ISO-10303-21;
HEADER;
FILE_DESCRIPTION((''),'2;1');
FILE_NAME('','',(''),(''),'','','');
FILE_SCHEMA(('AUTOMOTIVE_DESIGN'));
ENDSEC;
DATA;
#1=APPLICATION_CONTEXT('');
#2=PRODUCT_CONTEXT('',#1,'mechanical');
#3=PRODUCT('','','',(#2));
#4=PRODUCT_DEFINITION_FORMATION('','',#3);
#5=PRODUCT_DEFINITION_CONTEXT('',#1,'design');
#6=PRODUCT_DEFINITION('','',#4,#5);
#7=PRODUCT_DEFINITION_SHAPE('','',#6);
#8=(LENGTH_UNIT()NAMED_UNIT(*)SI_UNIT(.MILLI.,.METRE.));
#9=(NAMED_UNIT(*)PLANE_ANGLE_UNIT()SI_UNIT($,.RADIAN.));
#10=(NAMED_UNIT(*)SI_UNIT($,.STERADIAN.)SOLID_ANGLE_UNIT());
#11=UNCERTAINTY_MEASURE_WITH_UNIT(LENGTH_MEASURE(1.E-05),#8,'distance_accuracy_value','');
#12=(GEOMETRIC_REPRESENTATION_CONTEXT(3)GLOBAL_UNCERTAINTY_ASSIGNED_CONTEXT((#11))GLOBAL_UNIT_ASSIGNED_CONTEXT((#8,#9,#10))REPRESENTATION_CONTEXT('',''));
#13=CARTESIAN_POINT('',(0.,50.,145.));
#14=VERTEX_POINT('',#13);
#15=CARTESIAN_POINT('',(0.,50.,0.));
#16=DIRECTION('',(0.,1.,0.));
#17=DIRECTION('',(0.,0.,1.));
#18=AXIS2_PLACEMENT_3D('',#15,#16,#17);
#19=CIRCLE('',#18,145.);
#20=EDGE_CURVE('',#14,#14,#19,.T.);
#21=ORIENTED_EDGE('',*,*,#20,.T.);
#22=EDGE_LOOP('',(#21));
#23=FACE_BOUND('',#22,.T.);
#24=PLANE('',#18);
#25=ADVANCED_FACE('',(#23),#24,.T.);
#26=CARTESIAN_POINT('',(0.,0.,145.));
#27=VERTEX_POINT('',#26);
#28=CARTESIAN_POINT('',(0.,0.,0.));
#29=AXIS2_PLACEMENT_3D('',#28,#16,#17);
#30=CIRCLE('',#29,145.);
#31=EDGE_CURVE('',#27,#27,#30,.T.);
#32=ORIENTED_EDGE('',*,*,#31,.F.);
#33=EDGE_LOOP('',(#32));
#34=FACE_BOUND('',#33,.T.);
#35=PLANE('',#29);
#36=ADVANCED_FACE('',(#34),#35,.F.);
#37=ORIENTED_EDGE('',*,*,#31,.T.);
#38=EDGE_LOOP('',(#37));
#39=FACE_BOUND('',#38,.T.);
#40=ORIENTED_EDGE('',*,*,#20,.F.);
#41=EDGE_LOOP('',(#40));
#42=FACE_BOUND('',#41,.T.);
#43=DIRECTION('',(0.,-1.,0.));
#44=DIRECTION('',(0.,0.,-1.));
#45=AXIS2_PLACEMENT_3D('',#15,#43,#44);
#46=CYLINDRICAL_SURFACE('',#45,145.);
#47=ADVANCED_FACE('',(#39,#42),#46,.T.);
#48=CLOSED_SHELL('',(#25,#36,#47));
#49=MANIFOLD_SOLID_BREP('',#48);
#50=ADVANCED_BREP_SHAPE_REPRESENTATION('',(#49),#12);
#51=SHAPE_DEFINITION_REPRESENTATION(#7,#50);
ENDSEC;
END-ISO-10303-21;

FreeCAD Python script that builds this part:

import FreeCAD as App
import Part
import Sketcher
from FreeCAD import Vector
Q = App.Units.Quantity

doc = App.newDocument("Part")
body = doc.addObject("PartDesign::Body", "Body")

# Sketch on XZ plane
sketch1 = doc.addObject("Sketcher::SketchObject", "Sketch")
body.addObject(sketch1)
sketch1.AttachmentSupport = (doc.XZ_Plane, [""])
sketch1.MapMode = "FlatFace"
sketch1.addGeometry(Part.Circle(Vector(0, 0, 0), Vector(0, 0, 1), 145), False)
sketch1.addConstraint([
    Sketcher.Constraint("Coincident", 0, 3, -1, 1),
    Sketcher.Constraint("Diameter", 0, Q("290 mm")),
])
pad1 = doc.addObject("PartDesign::Pad", "Pad")
body.addObject(pad1)
pad1.Profile = sketch1
pad1.Length = 50
pad1.Reversed = True

doc.recompute()
